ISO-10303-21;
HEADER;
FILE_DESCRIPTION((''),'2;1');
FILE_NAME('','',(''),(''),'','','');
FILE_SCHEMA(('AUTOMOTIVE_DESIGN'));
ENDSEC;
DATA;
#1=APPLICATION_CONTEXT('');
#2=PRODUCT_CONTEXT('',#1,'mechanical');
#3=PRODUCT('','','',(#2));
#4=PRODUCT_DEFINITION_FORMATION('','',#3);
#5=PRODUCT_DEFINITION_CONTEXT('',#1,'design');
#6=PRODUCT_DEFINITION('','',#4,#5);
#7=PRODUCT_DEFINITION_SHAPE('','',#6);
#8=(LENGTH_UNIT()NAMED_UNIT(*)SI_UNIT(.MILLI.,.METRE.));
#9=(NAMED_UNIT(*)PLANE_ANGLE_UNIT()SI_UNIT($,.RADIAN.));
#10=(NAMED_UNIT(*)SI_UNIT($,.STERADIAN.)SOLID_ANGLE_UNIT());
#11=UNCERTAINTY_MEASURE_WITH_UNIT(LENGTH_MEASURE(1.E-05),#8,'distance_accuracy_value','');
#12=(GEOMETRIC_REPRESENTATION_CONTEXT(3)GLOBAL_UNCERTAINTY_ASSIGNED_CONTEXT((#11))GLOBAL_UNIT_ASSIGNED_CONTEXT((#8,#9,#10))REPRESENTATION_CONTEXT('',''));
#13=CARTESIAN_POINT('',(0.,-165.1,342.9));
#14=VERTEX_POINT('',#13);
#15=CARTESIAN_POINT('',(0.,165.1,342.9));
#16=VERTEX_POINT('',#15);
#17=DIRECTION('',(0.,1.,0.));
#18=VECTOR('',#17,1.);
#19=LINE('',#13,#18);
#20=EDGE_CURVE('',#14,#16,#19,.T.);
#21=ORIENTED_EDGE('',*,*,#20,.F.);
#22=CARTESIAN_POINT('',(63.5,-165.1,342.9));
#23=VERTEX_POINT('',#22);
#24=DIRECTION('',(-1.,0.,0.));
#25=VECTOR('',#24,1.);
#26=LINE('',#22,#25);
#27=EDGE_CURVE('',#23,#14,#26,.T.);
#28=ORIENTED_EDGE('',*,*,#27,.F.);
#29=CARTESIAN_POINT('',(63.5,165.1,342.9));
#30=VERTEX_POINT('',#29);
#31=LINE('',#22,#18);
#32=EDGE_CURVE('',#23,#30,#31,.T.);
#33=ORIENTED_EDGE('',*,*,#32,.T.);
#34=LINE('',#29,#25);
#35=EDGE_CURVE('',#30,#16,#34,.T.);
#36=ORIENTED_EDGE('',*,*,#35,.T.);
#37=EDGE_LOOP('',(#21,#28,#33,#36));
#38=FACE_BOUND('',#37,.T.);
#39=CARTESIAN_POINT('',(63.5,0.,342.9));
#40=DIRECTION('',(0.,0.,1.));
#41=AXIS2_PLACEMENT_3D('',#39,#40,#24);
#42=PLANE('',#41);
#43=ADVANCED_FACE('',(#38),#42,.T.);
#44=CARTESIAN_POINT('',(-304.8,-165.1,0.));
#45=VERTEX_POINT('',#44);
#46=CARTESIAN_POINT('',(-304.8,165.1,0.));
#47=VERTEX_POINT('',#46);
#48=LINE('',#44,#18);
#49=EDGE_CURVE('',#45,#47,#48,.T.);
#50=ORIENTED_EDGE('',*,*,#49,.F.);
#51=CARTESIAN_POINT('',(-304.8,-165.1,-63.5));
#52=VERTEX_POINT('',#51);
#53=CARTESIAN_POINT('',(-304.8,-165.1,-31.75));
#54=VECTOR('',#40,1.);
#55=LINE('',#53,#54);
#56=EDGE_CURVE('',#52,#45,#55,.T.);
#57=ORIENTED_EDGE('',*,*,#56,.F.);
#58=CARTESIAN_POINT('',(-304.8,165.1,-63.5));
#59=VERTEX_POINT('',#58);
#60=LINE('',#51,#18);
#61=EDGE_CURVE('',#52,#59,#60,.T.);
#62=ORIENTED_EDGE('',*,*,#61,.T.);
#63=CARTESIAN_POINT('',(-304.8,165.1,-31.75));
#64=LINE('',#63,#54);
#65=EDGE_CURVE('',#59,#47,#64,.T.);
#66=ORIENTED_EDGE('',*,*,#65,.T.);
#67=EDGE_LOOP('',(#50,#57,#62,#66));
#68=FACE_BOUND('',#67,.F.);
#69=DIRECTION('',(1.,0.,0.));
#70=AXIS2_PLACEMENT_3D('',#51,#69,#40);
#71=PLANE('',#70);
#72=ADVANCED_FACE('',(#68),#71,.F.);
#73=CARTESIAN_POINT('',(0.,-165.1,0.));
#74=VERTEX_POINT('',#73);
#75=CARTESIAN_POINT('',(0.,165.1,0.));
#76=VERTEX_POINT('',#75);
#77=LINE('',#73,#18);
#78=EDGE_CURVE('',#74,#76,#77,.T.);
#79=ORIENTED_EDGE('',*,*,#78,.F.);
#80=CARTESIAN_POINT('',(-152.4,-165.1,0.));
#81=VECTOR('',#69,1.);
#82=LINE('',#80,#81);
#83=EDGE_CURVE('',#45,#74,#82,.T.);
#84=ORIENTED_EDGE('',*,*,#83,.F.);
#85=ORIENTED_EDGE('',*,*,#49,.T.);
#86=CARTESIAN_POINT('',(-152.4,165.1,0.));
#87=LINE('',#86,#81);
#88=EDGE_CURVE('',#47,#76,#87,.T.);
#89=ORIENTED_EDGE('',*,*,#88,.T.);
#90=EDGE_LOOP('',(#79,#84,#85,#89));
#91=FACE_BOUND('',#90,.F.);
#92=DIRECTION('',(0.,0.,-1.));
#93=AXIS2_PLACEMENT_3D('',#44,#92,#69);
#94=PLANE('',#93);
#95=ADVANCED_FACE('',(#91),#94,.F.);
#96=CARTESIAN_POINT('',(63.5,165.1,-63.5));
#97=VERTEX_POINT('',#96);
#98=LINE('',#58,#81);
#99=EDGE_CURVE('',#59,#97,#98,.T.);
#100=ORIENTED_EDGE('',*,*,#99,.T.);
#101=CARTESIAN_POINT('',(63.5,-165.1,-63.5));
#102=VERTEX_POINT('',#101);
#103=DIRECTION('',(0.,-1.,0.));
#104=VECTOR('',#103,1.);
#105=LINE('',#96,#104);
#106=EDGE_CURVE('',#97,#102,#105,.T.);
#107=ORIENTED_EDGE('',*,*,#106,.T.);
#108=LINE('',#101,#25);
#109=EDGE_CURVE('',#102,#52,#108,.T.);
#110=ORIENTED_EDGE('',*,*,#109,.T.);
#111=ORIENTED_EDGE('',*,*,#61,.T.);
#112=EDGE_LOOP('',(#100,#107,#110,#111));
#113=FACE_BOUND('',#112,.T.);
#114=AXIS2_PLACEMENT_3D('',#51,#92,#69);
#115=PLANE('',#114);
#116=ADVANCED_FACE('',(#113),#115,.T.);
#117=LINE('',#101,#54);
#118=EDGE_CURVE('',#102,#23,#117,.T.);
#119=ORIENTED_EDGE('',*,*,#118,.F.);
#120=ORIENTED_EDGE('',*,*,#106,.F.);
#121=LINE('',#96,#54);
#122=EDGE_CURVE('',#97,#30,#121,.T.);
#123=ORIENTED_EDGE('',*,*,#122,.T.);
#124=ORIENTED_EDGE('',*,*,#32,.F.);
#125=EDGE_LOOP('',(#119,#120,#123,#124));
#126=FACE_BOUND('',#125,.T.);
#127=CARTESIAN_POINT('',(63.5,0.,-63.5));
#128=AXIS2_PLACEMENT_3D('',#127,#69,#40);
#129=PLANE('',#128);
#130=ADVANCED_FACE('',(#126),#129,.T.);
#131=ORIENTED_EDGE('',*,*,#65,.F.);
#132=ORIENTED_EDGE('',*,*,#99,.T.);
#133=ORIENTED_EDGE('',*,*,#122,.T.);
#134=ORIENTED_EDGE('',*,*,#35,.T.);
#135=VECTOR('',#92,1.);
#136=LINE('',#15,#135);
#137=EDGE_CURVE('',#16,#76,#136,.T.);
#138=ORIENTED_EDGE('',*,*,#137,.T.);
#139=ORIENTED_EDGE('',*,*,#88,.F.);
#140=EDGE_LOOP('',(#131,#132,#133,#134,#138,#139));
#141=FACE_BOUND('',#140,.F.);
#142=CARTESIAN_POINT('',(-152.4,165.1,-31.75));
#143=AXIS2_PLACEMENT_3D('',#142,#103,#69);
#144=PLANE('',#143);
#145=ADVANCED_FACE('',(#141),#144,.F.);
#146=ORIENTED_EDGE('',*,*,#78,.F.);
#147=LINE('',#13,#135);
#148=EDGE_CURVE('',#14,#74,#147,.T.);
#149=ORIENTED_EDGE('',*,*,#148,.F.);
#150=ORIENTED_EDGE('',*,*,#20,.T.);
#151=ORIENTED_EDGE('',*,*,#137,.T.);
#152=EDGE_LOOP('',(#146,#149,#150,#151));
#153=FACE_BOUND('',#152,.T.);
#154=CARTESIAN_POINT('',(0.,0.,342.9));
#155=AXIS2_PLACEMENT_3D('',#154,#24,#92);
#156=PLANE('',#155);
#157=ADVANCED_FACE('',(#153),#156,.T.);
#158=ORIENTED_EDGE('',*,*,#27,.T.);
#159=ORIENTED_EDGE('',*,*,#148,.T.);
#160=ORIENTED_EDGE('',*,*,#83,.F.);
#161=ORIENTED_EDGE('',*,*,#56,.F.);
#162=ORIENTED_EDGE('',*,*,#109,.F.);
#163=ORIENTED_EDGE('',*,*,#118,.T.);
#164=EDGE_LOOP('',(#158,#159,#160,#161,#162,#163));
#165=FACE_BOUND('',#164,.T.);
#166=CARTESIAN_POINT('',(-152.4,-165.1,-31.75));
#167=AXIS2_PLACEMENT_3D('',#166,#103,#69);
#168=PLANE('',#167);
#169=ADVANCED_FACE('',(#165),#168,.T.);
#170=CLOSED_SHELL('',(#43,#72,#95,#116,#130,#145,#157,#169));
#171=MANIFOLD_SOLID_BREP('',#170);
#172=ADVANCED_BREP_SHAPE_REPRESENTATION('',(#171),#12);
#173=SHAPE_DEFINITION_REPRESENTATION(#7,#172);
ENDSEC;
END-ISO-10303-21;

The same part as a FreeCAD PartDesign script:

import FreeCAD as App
import Part
import Sketcher
Q = App.Units.Quantity


def add_polygon(sketch, points):
    """Adds a closed chain of lines whose ends are joined by coincident constraints."""
    first, n = sketch.GeometryCount, len(points)
    for a, b in zip(points, points[1:] + points[:1]):
        sketch.addGeometry(Part.LineSegment(App.Vector(*a, 0), App.Vector(*b, 0)), False)
    for i in range(n):
        sketch.addConstraint(Sketcher.Constraint("Coincident", first + i, 2, first + (i + 1) % n, 1))

doc = App.newDocument("Part")
body = doc.addObject("PartDesign::Body", "Body")

sketch1 = body.newObject("Sketcher::SketchObject", "Sketch")
sketch1.AttachmentSupport = (doc.getObject("XZ_Plane"), [""])
sketch1.MapMode = "FlatFace"
add_polygon(sketch1, [(0, 343), (0, -64), (64, -64), (64, 343)])
sketch1.addConstraint([
    Sketcher.Constraint("Vertical", 0),
    Sketcher.Constraint("Horizontal", 1),
    Sketcher.Constraint("Vertical", 2),
    Sketcher.Constraint("Horizontal", 3),
    Sketcher.Constraint("PointOnObject", 0, 2, -2),
    Sketcher.Constraint("DistanceY", 0, 2, 0, 1, Q("16 in")),
    Sketcher.Constraint("DistanceX", 1, 1, 1, 2, Q("2.5 in")),
    Sketcher.Constraint("DistanceY", 0, 2, -1, 1, Q("2.5 in")),
])
pad1 = body.newObject("PartDesign::Pad", "Pad")
pad1.Profile = sketch1
pad1.Length = Q("13 in")
pad1.Midplane = True

sketch2 = body.newObject("Sketcher::SketchObject", "Sketch001")
sketch2.AttachmentSupport = (doc.getObject("XZ_Plane"), [""])
sketch2.MapMode = "FlatFace"
sketch2.AttachmentOffset = App.Placement(App.Vector(0, 0, 6.5 * 25.4), App.Rotation())
add_polygon(sketch2, [(-305, 0), (-305, -64), (0, -64), (0, 0)])
sketch2.addConstraint([
    Sketcher.Constraint("Vertical", 0),
    Sketcher.Constraint("Horizontal", 1),
    Sketcher.Constraint("Vertical", 2),
    Sketcher.Constraint("Horizontal", 3),
    Sketcher.Constraint("Coincident", 2, 2, -1, 1),
    Sketcher.Constraint("DistanceX", 1, 1, 1, 2, Q("12 in")),
    Sketcher.Constraint("DistanceY", 0, 2, 0, 1, Q("2.5 in")),
])
pad2 = body.newObject("PartDesign::Pad", "Pad001")
pad2.Profile = sketch2
pad2.Length = Q("13 in")
pad2.Reversed = True

doc.recompute()
